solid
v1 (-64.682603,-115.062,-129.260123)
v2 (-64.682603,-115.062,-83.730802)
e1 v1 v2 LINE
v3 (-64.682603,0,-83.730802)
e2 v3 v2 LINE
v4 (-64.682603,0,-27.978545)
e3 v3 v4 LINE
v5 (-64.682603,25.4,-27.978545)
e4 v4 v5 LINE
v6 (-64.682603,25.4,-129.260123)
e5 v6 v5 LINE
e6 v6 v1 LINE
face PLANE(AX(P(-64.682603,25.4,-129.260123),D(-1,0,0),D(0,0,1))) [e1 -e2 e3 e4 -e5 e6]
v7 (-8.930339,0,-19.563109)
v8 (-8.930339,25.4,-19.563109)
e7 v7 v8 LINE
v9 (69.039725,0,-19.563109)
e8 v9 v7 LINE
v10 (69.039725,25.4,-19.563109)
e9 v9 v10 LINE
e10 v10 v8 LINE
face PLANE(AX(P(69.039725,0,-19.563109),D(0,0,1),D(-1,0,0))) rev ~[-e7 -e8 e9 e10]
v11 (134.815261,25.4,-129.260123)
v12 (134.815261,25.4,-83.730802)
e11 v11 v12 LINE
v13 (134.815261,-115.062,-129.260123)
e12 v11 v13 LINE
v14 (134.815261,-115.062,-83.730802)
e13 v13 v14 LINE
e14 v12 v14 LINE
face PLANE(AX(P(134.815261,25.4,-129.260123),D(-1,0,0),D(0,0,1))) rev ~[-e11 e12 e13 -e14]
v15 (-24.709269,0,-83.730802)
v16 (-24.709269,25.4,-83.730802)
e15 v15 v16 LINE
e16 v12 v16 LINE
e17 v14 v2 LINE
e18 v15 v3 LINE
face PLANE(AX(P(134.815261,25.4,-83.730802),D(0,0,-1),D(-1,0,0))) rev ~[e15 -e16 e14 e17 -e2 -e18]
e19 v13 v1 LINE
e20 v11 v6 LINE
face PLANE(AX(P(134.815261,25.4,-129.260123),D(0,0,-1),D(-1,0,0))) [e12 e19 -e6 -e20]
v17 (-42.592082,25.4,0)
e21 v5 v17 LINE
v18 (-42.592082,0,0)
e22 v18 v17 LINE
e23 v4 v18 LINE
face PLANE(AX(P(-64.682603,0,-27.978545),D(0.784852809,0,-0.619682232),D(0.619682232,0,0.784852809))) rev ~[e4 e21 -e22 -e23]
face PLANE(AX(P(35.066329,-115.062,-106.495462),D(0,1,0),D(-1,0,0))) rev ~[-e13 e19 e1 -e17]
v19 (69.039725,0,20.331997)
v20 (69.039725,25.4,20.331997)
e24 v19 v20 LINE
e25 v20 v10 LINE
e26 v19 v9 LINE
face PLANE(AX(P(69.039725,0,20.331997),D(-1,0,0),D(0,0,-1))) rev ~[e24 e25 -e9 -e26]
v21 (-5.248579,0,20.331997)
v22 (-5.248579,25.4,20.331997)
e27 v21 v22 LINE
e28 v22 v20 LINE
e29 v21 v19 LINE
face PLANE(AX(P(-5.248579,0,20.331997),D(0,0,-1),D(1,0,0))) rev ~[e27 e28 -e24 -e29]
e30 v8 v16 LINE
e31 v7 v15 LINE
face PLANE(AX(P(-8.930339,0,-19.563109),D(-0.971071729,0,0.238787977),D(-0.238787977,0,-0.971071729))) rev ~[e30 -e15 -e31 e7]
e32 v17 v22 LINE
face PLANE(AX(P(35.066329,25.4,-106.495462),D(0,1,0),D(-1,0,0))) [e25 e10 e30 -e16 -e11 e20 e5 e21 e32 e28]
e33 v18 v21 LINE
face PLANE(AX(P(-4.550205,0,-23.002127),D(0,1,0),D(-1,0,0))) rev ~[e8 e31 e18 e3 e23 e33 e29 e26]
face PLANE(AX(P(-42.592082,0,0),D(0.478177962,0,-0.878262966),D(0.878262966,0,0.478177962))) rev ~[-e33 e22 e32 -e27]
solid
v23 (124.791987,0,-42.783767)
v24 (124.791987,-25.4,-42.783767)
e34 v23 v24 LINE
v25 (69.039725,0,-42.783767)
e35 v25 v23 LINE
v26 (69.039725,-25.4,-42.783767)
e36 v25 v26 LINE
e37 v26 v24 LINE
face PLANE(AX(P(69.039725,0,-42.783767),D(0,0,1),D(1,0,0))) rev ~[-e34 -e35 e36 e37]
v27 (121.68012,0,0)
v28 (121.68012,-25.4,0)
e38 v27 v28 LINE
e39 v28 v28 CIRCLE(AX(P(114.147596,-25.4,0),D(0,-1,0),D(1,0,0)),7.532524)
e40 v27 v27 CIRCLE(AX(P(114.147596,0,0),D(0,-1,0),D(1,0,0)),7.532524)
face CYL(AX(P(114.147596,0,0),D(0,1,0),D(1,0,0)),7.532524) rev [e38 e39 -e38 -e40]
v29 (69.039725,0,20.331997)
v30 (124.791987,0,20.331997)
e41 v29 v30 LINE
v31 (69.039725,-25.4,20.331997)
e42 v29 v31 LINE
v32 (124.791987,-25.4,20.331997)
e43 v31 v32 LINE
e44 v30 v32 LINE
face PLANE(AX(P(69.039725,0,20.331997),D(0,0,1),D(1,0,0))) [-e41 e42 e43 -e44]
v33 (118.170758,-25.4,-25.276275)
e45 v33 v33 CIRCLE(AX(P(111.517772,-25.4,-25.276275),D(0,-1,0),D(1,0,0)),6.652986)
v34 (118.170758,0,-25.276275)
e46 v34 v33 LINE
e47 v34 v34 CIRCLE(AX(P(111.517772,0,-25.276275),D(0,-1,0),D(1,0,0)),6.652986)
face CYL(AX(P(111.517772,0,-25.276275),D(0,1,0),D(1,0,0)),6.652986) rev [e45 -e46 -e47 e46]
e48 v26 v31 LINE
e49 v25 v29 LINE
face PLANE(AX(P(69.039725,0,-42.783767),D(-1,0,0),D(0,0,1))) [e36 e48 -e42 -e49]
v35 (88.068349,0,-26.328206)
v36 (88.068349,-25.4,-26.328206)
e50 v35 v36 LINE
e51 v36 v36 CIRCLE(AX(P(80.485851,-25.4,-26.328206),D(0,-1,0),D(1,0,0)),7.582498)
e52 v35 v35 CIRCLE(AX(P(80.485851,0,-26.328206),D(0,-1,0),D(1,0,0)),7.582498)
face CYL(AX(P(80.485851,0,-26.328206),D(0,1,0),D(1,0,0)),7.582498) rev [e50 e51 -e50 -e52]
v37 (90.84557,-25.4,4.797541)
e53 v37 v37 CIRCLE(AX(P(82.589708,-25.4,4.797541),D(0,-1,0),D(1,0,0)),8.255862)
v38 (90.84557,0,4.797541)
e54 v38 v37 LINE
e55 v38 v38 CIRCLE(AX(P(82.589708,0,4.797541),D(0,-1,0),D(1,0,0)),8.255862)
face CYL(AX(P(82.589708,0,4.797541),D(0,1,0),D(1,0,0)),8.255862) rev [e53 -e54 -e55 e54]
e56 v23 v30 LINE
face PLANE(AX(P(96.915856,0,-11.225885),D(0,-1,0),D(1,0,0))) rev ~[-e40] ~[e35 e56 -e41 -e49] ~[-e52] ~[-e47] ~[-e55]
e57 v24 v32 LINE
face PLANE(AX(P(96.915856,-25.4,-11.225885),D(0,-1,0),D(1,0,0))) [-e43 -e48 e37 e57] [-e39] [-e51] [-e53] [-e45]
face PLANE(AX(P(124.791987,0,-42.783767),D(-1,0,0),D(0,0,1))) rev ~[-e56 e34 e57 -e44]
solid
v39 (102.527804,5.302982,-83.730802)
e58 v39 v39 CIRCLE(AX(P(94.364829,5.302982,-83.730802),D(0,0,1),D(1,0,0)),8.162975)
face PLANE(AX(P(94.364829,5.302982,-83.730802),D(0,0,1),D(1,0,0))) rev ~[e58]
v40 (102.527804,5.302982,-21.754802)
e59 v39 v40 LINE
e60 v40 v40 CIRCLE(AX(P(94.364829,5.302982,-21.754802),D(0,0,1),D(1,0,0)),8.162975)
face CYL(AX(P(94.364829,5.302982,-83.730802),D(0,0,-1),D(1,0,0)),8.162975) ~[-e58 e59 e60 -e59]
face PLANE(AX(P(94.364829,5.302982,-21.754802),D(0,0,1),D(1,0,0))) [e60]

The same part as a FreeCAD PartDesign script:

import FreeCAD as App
import Part
import Sketcher

V = App.Vector
Q = App.Units.Quantity


def add_polygon(sketch, points):
    """Adds a closed chain of lines whose ends are joined by coincident constraints."""
    first, n = sketch.GeometryCount, len(points)
    for a, b in zip(points, points[1:] + points[:1]):
        sketch.addGeometry(Part.LineSegment(App.Vector(*a, 0), App.Vector(*b, 0)), False)
    for i in range(n):
        sketch.addConstraint(Sketcher.Constraint("Coincident", first + i, 2, first + (i + 1) % n, 1))

doc = App.newDocument("Part")
body = doc.addObject("PartDesign::Body", "Body")

# Sketch on XZ plane
sketch1 = body.newObject("Sketcher::SketchObject", "Sketch")
sketch1.AttachmentSupport = (doc.getObject("XZ_Plane"), [""])
sketch1.MapMode = "FlatFace"
add_polygon(sketch1, [(69, 20), (69, -43), (125, -43), (125, 20)])  # lines 0-3
sketch1.addGeometry(Part.Circle(V(80, -26, 0), V(0, 0, 1), 8), False)  # 4
sketch1.addGeometry(Part.Circle(V(112, -25, 0), V(0, 0, 1), 7), False)  # 5
sketch1.addGeometry(Part.Circle(V(83, 5, 0), V(0, 0, 1), 8), False)  # 6
sketch1.addGeometry(Part.Circle(V(114, 0, 0), V(0, 0, 1), 8), False)  # 7
sketch1.addConstraint([
    Sketcher.Constraint("Vertical", 0),
    Sketcher.Constraint("Horizontal", 1),
    Sketcher.Constraint("Vertical", 2),
    Sketcher.Constraint("Horizontal", 3),
    Sketcher.Constraint("PointOnObject", 7, 3, -1),
    Sketcher.Constraint("Diameter", 7, 15.065049),
    Sketcher.Constraint("DistanceX", -1, 1, 7, 3, Q("4.4939998 in")),
    Sketcher.Constraint("Diameter", 4, 15.164996),
    Sketcher.Constraint("Diameter", 5, 13.305973),
    Sketcher.Constraint("Diameter", 6, 16.511724),
    Sketcher.Constraint("DistanceX", 6, 3, 5, 3, Q("1.1389002 in")),
    Sketcher.Constraint("DistanceX", 1, 1, 1, 2, 55.752262),
    Sketcher.Constraint("DistanceY", 0, 2, 0, 1, 63.115764),
    Sketcher.Constraint("DistanceX", -1, 1, 4, 3, 80.485851),
    Sketcher.Constraint("DistanceX", -1, 1, 6, 3, 82.589708),
    Sketcher.Constraint("DistanceY", -1, 1, 6, 3, 4.797541),
    Sketcher.Constraint("DistanceY", 4, 3, 5, 3, 1.051931),
    Sketcher.Constraint("DistanceY", 0, 2, 4, 3, 16.455561),
    Sketcher.Constraint("DistanceX", 0, 2, 7, 3, 45.107871),
    Sketcher.Constraint("DistanceY", 4, 3, -1, 1, 26.328206),
])
pad1 = body.newObject("PartDesign::Pad", "Pad")
pad1.Profile = sketch1
pad1.Length = Q("1 in")
body2 = doc.addObject("PartDesign::Body", "Body001")

# Sketch on XZ plane
sketch2 = body2.newObject("Sketcher::SketchObject", "Sketch001")
sketch2.AttachmentSupport = (doc.getObject("XZ_Plane001"), [""])
sketch2.MapMode = "FlatFace"
add_polygon(sketch2, [(-5, 20), (69, 20), (69, -20), (-9, -20), (-25, -84), (-65, -84), (-65, -28), (-43, 0)])  # lines 0-7
sketch2.addConstraint([
    Sketcher.Constraint("Horizontal", 0),
    Sketcher.Constraint("Vertical", 1),
    Sketcher.Constraint("Horizontal", 2),
    Sketcher.Constraint("Horizontal", 4),
    Sketcher.Constraint("Vertical", 5),
    Sketcher.Constraint("PointOnObject", 6, 2, -1),
    Sketcher.Constraint("DistanceY", 3, 2, -1, 1, 83.730802),
    Sketcher.Constraint("DistanceY", 3, 2, 0, 2, 104.062799),
    Sketcher.Constraint("Distance", 3, 66.079252),
    Sketcher.Constraint("Distance", 7, 42.519729),
    Sketcher.Constraint("DistanceX", 0, 1, 0, 2, 74.288303),
    Sketcher.Constraint("DistanceX", 2, 2, 2, 1, 77.970063),
    Sketcher.Constraint("DistanceX", 4, 2, 4, 1, 39.973333),
    Sketcher.Constraint("DistanceY", 1, 2, 1, 1, 39.895106),
    Sketcher.Constraint("DistanceY", 5, 1, 5, 2, 55.752257),
    Sketcher.Constraint("DistanceX", 2, 2, -1, 1, 8.930339),
])
pad2 = body2.newObject("PartDesign::Pad", "Pad001")
pad2.Profile = sketch2
pad2.Length = Q("1 in")
pad2.Reversed = True

# Sketch on XZ plane
sketch3 = body2.newObject("Sketcher::SketchObject", "Sketch002")
sketch3.AttachmentSupport = (doc.getObject("XZ_Plane001"), [""])
sketch3.MapMode = "FlatFace"
sketch3.AttachmentOffset = App.Placement(V(0, 0, -1 * 25.4), App.Rotation())
add_polygon(sketch3, [(135, -84), (135, -129), (-65, -129), (-65, -84)])  # lines 0-3
sketch3.addConstraint([
    Sketcher.Constraint("Vertical", 0),
    Sketcher.Constraint("Horizontal", 1),
    Sketcher.Constraint("Vertical", 2),
    Sketcher.Constraint("Horizontal", 3),
    Sketcher.Constraint("DistanceY", 0, 2, 0, 1, 45.529321),
    Sketcher.Constraint("DistanceY", 2, 2, -1, 1, 83.730802),
    Sketcher.Constraint("DistanceX", 1, 2, 1, 1, 199.497864),
    Sketcher.Constraint("DistanceX", -1, 1, 0, 2, 134.815261),
])
pad3 = body2.newObject("PartDesign::Pad", "Pad002")
pad3.Profile = sketch3
pad3.Length = Q("5.53 in")
body3 = doc.addObject("PartDesign::Body", "Body002")

# Sketch on XY plane
sketch4 = body3.newObject("Sketcher::SketchObject", "Sketch003")
sketch4.AttachmentSupport = (doc.getObject("XY_Plane002"), [""])
sketch4.MapMode = "FlatFace"
sketch4.AttachmentOffset = App.Placement(V(0, 0, -83.730802), App.Rotation())
sketch4.addGeometry(Part.Circle(V(94, 5, 0), V(0, 0, 1), 8), False)
sketch4.addConstraint([
    Sketcher.Constraint("Diameter", 0, 16.325949),
    Sketcher.Constraint("DistanceX", -1, 1, 0, 3, 94.364829),
    Sketcher.Constraint("DistanceY", -1, 1, 0, 3, 5.302982),
])
pad4 = body3.newObject("PartDesign::Pad", "Pad003")
pad4.Profile = sketch4
pad4.Length = Q("2.44 in")

doc.recompute()
